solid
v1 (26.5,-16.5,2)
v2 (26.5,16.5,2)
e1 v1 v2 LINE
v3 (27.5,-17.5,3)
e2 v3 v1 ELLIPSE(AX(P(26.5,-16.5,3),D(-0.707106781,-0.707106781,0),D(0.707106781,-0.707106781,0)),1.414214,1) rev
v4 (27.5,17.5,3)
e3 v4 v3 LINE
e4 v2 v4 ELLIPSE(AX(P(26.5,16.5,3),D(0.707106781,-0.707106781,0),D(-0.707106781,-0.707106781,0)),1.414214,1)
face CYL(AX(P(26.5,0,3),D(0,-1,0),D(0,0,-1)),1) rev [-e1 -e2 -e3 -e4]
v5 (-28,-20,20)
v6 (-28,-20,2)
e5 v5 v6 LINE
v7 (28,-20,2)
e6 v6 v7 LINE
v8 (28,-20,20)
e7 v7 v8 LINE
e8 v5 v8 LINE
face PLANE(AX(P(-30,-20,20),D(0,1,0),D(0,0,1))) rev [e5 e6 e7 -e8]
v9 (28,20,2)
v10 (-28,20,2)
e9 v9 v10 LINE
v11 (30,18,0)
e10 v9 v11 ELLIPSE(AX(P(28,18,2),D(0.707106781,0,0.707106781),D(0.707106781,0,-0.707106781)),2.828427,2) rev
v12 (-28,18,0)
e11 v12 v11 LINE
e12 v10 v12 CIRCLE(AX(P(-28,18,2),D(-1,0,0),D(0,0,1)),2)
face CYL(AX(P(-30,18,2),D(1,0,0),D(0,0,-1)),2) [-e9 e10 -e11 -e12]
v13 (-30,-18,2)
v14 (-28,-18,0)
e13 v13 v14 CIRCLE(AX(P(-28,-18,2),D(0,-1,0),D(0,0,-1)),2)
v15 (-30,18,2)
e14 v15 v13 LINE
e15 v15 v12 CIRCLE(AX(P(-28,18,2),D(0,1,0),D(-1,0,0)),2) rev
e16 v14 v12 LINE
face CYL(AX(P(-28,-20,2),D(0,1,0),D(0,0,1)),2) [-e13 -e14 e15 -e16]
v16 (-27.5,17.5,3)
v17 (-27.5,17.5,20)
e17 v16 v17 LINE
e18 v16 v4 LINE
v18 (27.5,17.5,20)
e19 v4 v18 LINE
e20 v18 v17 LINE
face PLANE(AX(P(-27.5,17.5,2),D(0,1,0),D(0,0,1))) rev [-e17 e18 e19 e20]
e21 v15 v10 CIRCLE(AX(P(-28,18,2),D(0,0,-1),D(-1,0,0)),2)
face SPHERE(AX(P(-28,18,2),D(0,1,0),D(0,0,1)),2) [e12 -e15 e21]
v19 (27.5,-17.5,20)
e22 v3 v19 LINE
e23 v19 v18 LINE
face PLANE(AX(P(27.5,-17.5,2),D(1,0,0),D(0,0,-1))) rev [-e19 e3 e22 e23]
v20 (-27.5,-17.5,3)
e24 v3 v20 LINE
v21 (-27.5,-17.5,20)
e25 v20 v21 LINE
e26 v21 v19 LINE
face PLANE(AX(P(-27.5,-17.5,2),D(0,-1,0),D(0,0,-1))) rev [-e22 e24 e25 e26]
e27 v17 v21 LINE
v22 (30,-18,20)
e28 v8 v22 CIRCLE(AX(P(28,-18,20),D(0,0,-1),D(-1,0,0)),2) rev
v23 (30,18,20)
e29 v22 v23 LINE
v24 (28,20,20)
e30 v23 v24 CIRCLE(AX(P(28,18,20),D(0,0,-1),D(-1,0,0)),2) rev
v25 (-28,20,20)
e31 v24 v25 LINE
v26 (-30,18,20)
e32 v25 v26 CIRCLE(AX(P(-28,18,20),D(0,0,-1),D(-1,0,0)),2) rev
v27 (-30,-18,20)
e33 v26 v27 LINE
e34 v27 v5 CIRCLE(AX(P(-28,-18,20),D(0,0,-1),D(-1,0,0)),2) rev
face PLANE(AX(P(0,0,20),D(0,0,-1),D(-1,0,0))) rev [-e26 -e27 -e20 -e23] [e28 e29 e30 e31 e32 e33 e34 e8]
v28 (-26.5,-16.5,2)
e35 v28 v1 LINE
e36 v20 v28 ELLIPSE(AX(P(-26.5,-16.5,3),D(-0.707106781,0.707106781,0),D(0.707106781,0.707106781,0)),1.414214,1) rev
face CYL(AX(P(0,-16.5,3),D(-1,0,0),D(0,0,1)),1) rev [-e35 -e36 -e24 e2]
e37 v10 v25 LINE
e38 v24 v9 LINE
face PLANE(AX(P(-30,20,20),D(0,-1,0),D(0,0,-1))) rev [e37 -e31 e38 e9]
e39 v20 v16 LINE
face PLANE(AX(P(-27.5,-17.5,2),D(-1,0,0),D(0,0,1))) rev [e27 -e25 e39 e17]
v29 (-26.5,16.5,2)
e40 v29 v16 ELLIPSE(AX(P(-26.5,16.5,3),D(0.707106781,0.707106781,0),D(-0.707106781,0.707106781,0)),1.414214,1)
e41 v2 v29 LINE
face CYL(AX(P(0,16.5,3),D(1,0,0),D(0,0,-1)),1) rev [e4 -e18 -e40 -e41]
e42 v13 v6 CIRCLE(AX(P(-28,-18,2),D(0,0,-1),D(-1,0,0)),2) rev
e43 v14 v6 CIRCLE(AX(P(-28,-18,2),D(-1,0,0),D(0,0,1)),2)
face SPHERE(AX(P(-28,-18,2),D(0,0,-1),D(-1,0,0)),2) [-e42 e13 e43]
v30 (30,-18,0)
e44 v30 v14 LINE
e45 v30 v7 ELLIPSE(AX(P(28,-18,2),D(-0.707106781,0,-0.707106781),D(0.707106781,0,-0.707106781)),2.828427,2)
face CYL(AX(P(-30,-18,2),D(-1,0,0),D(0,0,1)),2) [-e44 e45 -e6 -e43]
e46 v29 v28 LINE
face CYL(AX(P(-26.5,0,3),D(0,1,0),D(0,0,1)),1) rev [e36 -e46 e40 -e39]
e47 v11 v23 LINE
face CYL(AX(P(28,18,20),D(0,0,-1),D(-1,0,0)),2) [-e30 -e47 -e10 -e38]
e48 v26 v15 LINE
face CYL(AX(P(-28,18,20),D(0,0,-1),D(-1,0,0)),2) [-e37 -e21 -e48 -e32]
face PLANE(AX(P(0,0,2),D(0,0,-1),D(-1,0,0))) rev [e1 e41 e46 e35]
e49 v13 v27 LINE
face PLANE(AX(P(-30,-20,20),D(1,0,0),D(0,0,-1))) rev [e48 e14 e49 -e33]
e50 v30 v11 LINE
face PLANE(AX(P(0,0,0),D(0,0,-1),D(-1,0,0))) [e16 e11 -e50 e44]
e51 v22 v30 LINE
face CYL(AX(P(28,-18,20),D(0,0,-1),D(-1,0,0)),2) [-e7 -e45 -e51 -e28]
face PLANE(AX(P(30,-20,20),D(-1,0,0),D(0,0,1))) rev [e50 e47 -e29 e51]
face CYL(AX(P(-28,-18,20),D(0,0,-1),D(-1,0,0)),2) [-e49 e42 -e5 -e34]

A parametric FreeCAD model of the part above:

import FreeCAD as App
import Part
import Sketcher

V = App.Vector
Q = App.Units.Quantity


def edges_at(feature, points):
    """Names of the edges that pass closest to the given points."""
    edges = feature.Shape.Edges
    near = lambda p: min(range(len(edges)), key=lambda i: edges[i].distToShape(Part.Vertex(*p))[0])
    return sorted({f"Edge{near(p) + 1}" for p in points})

doc = App.newDocument("Part")
body = doc.addObject("PartDesign::Body", "Body")

# Sketch on XY plane
sketch1 = body.newObject("Sketcher::SketchObject", "Sketch")
sketch1.AttachmentSupport = (doc.getObject("XY_Plane"), [""])
sketch1.MapMode = "FlatFace"
sketch1.addGeometry([
    Part.LineSegment(V(-30, 20, 0), V(-30, -20, 0)),
    Part.LineSegment(V(-30, -20, 0), V(30, -20, 0)),
    Part.LineSegment(V(30, -20, 0), V(30, 20, 0)),
    Part.LineSegment(V(30, 20, 0), V(-30, 20, 0)),
], False)
sketch1.addConstraint([
    Sketcher.Constraint("Coincident", 0, 2, 1, 1),
    Sketcher.Constraint("Coincident", 1, 2, 2, 1),
    Sketcher.Constraint("Coincident", 2, 2, 3, 1),
    Sketcher.Constraint("Coincident", 3, 2, 0, 1),
    Sketcher.Constraint("Vertical", 0),
    Sketcher.Constraint("Horizontal", 1),
    Sketcher.Constraint("Vertical", 2),
    Sketcher.Constraint("Horizontal", 3),
    Sketcher.Constraint("Symmetric", 0, 2, 2, 2, -1, 1),
    Sketcher.Constraint("DistanceX", 1, 1, 1, 2, Q("60 mm")),
    Sketcher.Constraint("DistanceY", 0, 2, 0, 1, Q("40 mm")),
])
pad1 = body.newObject("PartDesign::Pad", "Pad")
pad1.Profile = sketch1
pad1.Length = 20

# Sketch on XY plane
sketch2 = body.newObject("Sketcher::SketchObject", "Sketch001")
sketch2.AttachmentSupport = (doc.getObject("XY_Plane"), [""])
sketch2.MapMode = "FlatFace"
sketch2.AttachmentOffset = App.Placement(V(0, 0, 20), App.Rotation())
sketch2.addGeometry([
    Part.LineSegment(V(-27.5, 17.5, 0), V(-27.5, -17.5, 0)),
    Part.LineSegment(V(-27.5, -17.5, 0), V(27.5, -17.5, 0)),
    Part.LineSegment(V(27.5, -17.5, 0), V(27.5, 17.5, 0)),
    Part.LineSegment(V(27.5, 17.5, 0), V(-27.5, 17.5, 0)),
], False)
sketch2.addConstraint([
    Sketcher.Constraint("Coincident", 0, 2, 1, 1),
    Sketcher.Constraint("Coincident", 1, 2, 2, 1),
    Sketcher.Constraint("Coincident", 2, 2, 3, 1),
    Sketcher.Constraint("Coincident", 3, 2, 0, 1),
    Sketcher.Constraint("Vertical", 0),
    Sketcher.Constraint("Horizontal", 1),
    Sketcher.Constraint("Vertical", 2),
    Sketcher.Constraint("Horizontal", 3),
    Sketcher.Constraint("Symmetric", 0, 2, 2, 2, -1, 1),
    Sketcher.Constraint("DistanceX", 1, 1, 1, 2, Q("55 mm")),
    Sketcher.Constraint("DistanceY", 0, 2, 0, 1, Q("35 mm")),
])
pocket1 = body.newObject("PartDesign::Pocket", "Pocket")
pocket1.Profile = sketch2
pocket1.Length = 18
doc.recompute()

fillet = body.newObject("PartDesign::Fillet", "Fillet")
fillet.Base = (pocket1, edges_at(pocket1, [
    (27.5, 0, 2),
    (0, -17.5, 2),
    (-27.5, 0, 2),
    (0, 17.5, 2),
]))
fillet.Radius = 1
doc.recompute()

fillet2 = body.newObject("PartDesign::Fillet", "Fillet001")
fillet2.Base = (fillet, edges_at(fillet, [
    (0, -20, 0),
    (-30, 0, 0),
    (0, 20, 0),
    (30, -20, 10),
    (-30, -20, 10),
    (-30, 20, 10),
    (30, 20, 10),
]))
fillet2.Radius = 2

doc.recompute()
